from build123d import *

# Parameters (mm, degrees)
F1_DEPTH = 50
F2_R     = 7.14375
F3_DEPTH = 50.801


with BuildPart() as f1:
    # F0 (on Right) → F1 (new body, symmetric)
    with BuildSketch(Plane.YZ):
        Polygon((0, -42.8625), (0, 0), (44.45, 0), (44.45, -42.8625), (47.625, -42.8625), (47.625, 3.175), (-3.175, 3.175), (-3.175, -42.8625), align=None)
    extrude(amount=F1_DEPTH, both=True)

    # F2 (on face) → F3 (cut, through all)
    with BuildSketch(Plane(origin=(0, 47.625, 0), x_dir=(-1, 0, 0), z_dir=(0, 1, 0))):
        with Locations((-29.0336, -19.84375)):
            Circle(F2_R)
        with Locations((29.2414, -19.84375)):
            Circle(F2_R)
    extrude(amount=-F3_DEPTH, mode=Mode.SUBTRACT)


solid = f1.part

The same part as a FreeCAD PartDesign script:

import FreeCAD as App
import Part
import Sketcher
Q = App.Units.Quantity


def add_polygon(sketch, points):
    """Adds a closed chain of lines whose ends are joined by coincident constraints."""
    first, n = sketch.GeometryCount, len(points)
    for a, b in zip(points, points[1:] + points[:1]):
        sketch.addGeometry(Part.LineSegment(App.Vector(*a, 0), App.Vector(*b, 0)), False)
    for i in range(n):
        sketch.addConstraint(Sketcher.Constraint("Coincident", first + i, 2, first + (i + 1) % n, 1))

doc = App.newDocument("Part")
body = doc.addObject("PartDesign::Body", "Body")

sketch1 = body.newObject("Sketcher::SketchObject", "Sketch")
sketch1.AttachmentSupport = (doc.getObject("YZ_Plane"), [""])
sketch1.MapMode = "FlatFace"
add_polygon(sketch1, [(0, -42.9), (0, 0), (44.5, 0), (44.5, -42.9), (47.6, -42.9), (47.6, 3.2), (-3.2, 3.2), (-3.2, -42.9)])
sketch1.addConstraint(Sketcher.Constraint("Vertical", 0))
sketch1.addConstraint(Sketcher.Constraint("Horizontal", 1))
sketch1.addConstraint(Sketcher.Constraint("Vertical", 2))
sketch1.addConstraint(Sketcher.Constraint("Horizontal", 3))
sketch1.addConstraint(Sketcher.Constraint("Vertical", 4))
sketch1.addConstraint(Sketcher.Constraint("Horizontal", 5))
sketch1.addConstraint(Sketcher.Constraint("Vertical", 6))
sketch1.addConstraint(Sketcher.Constraint("Horizontal", 7))
sketch1.addConstraint(Sketcher.Constraint("Coincident", 0, 2, -1, 1))
sketch1.addConstraint(Sketcher.Constraint("Horizontal", 3, 2, 6, 2))
sketch1.addConstraint(Sketcher.Constraint("Equal", 3, 7))
sketch1.addConstraint(Sketcher.Constraint("DistanceX", 5, 2, 5, 1, Q("2 in")))
sketch1.addConstraint(Sketcher.Constraint("DistanceX", 1, 1, 1, 2, Q("1.75 in")))
sketch1.addConstraint(Sketcher.Constraint("DistanceY", 0, 1, 0, 2, Q("1.6875 in")))
sketch1.addConstraint(Sketcher.Constraint("DistanceY", 4, 1, 4, 2, Q("1.8125 in")))
pad1 = body.newObject("PartDesign::Pad", "Pad")
pad1.Profile = sketch1
pad1.Length = 100
pad1.Midplane = True

sketch2 = body.newObject("Sketcher::SketchObject", "Sketch001")
sketch2.AttachmentSupport = (doc.getObject("XZ_Plane"), [""])
sketch2.MapMode = "FlatFace"
sketch2.AttachmentOffset = App.Placement(App.Vector(0, 0, -1.875 * 25.4), App.Rotation())
sketch2.addGeometry(Part.Circle(App.Vector(29, -20, 0), App.Vector(0, 0, 1), 7), False)
sketch2.addGeometry(Part.Circle(App.Vector(-29, -20, 0), App.Vector(0, 0, 1), 7), False)
sketch2.addConstraint(Sketcher.Constraint("Equal", 0, 1))
sketch2.addConstraint(Sketcher.Constraint("Horizontal", 0, 3, 1, 3))
sketch2.addConstraint(Sketcher.Constraint("Diameter", 0, Q("0.5625 in")))
sketch2.addConstraint(Sketcher.Constraint("DistanceY", 0, 3, -1, 1, Q("0.78125 in")))
sketch2.addConstraint(Sketcher.Constraint("DistanceX", -1, 1, 0, 3, Q("29.0336 mm")))
sketch2.addConstraint(Sketcher.Constraint("DistanceX", 1, 3, -1, 1, Q("29.2414 mm")))
pocket1 = body.newObject("PartDesign::Pocket", "Pocket")
pocket1.Profile = sketch2
pocket1.Type = "ThroughAll"
pocket1.Reversed = True

doc.recompute()
